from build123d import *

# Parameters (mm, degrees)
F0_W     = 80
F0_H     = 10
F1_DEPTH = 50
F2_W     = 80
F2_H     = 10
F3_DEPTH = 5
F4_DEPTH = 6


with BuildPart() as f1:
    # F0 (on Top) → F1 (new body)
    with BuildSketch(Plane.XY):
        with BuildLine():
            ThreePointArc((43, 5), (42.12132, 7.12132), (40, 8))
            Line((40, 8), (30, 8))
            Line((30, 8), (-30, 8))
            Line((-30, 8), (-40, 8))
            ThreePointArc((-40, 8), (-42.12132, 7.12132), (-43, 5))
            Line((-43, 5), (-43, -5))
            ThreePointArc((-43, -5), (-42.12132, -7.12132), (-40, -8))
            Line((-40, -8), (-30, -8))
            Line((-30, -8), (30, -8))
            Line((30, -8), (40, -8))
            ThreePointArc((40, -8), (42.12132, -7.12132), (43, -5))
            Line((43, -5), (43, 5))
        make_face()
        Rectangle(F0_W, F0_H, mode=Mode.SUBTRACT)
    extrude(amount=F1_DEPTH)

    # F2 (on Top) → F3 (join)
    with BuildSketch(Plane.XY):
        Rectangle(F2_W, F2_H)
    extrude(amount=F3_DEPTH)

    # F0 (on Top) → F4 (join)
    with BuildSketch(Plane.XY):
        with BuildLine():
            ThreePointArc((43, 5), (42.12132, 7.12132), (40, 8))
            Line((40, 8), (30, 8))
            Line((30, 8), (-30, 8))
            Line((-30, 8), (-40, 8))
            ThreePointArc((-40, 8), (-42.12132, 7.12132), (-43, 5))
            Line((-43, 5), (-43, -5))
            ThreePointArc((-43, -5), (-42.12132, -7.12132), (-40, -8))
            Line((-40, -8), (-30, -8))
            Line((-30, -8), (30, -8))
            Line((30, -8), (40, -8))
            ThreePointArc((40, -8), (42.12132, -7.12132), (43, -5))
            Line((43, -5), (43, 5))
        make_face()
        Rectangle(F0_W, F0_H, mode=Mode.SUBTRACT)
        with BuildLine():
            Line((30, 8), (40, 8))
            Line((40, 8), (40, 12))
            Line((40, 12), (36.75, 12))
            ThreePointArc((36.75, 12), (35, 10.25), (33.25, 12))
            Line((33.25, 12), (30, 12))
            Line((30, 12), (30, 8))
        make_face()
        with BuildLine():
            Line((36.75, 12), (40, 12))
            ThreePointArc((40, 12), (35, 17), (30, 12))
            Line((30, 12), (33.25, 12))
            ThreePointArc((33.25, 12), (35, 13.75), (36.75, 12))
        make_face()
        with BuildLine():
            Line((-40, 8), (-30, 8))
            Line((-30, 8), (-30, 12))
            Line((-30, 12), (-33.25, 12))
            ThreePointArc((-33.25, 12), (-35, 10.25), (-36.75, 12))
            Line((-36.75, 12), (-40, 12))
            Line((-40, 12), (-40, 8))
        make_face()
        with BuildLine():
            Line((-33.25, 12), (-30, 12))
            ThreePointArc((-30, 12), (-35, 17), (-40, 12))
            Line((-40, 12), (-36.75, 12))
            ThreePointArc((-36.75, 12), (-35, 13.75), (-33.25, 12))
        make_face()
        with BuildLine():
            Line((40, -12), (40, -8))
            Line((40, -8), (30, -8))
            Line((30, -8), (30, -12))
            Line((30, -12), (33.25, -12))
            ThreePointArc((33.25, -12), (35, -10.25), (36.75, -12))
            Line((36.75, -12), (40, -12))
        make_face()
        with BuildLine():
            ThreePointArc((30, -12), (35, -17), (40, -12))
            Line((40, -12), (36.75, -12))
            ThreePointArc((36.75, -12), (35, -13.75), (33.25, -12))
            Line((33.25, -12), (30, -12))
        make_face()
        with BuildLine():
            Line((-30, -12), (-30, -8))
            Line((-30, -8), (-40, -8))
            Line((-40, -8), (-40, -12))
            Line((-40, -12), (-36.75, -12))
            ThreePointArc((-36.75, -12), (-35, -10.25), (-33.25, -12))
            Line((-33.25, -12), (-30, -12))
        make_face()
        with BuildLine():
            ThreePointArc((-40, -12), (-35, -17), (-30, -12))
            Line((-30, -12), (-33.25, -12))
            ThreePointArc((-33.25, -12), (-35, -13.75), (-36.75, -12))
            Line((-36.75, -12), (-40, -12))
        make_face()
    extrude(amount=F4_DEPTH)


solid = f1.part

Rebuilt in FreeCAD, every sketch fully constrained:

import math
import FreeCAD as App
import Part
import Sketcher
Q = App.Units.Quantity


def add_polygon(sketch, points):
    """Adds a closed chain of lines whose ends are joined by coincident constraints."""
    first, n = sketch.GeometryCount, len(points)
    for a, b in zip(points, points[1:] + points[:1]):
        sketch.addGeometry(Part.LineSegment(App.Vector(*a, 0), App.Vector(*b, 0)), False)
    for i in range(n):
        sketch.addConstraint(Sketcher.Constraint("Coincident", first + i, 2, first + (i + 1) % n, 1))

doc = App.newDocument("Part")
body = doc.addObject("PartDesign::Body", "Body")

# Sketch on XY plane
sketch1 = doc.addObject("Sketcher::SketchObject", "Sketch")
body.addObject(sketch1)
sketch1.AttachmentSupport = (doc.XY_Plane, [""])
sketch1.MapMode = "FlatFace"
sketch1.addGeometry(Part.ArcOfCircle(Part.Circle(App.Vector(39.999999, 4.999999, 0), App.Vector(0, 0, 1), 3.000001), math.radians(0.000022), math.radians(89.999978)), False)  # 0
sketch1.addGeometry(Part.LineSegment(App.Vector(40, 8, 0), App.Vector(-40, 8, 0)), False)  # 1
sketch1.addGeometry(Part.ArcOfCircle(Part.Circle(App.Vector(-39.999999, 4.999999, 0), App.Vector(0, 0, 1), 3.000001), math.radians(90.000022), math.radians(179.999978)), False)  # 2
sketch1.addGeometry(Part.LineSegment(App.Vector(-43, 5, 0), App.Vector(-43, -5, 0)), False)  # 3
sketch1.addGeometry(Part.ArcOfCircle(Part.Circle(App.Vector(-39.999999, -4.999999, 0), App.Vector(0, 0, 1), 3.000001), math.radians(-179.999978), math.radians(-90.000022)), False)  # 4
sketch1.addGeometry(Part.LineSegment(App.Vector(-40, -8, 0), App.Vector(40, -8, 0)), False)  # 5
sketch1.addGeometry(Part.ArcOfCircle(Part.Circle(App.Vector(39.999999, -4.999999, 0), App.Vector(0, 0, 1), 3.000001), math.radians(-89.999978), math.radians(-0.000022)), False)  # 6
sketch1.addGeometry(Part.LineSegment(App.Vector(43, -5, 0), App.Vector(43, 5, 0)), False)  # 7
add_polygon(sketch1, [(40, -5), (-40, -5), (-40, 5), (40, 5)])  # lines 8-11
sketch1.addConstraint(Sketcher.Constraint("Tangent", 0, 2, 1, 1))
sketch1.addConstraint(Sketcher.Constraint("Tangent", 1, 2, 2, 1))
sketch1.addConstraint(Sketcher.Constraint("Tangent", 2, 2, 3, 1))
sketch1.addConstraint(Sketcher.Constraint("Tangent", 3, 2, 4, 1))
sketch1.addConstraint(Sketcher.Constraint("Tangent", 4, 2, 5, 1))
sketch1.addConstraint(Sketcher.Constraint("Tangent", 5, 2, 6, 1))
sketch1.addConstraint(Sketcher.Constraint("Tangent", 6, 2, 7, 1))
sketch1.addConstraint(Sketcher.Constraint("Tangent", 7, 2, 0, 1))
sketch1.addConstraint(Sketcher.Constraint("Horizontal", 1))
sketch1.addConstraint(Sketcher.Constraint("Vertical", 3))
sketch1.addConstraint(Sketcher.Constraint("Horizontal", 5))
sketch1.addConstraint(Sketcher.Constraint("Vertical", 7))
sketch1.addConstraint(Sketcher.Constraint("Horizontal", 8))
sketch1.addConstraint(Sketcher.Constraint("Vertical", 9))
sketch1.addConstraint(Sketcher.Constraint("Horizontal", 10))
sketch1.addConstraint(Sketcher.Constraint("Vertical", 11))
sketch1.addConstraint(Sketcher.Constraint("Coincident", 8, 2, 4, 3))
sketch1.addConstraint(Sketcher.Constraint("Coincident", 9, 2, 2, 3))
sketch1.addConstraint(Sketcher.Constraint("Coincident", 10, 2, 0, 3))
sketch1.addConstraint(Sketcher.Constraint("Equal", 4, 6))
sketch1.addConstraint(Sketcher.Constraint("Symmetric", 0, 3, 4, 3, -1, 1))
sketch1.addConstraint(Sketcher.Constraint("Radius", 0, Q("3.000001 mm")))
sketch1.addConstraint(Sketcher.Constraint("DistanceX", 1, 2, 1, 1, Q("80 mm")))
sketch1.addConstraint(Sketcher.Constraint("DistanceY", 3, 2, 3, 1, Q("10 mm")))
pad1 = doc.addObject("PartDesign::Pad", "Pad")
body.addObject(pad1)
pad1.Profile = sketch1
pad1.Length = 50

# Sketch on XY plane
sketch2 = doc.addObject("Sketcher::SketchObject", "Sketch001")
body.addObject(sketch2)
sketch2.AttachmentSupport = (doc.XY_Plane, [""])
sketch2.MapMode = "FlatFace"
add_polygon(sketch2, [(-40, 5), (-40, -5), (40, -5), (40, 5)])  # lines 0-3
sketch2.addConstraint(Sketcher.Constraint("Vertical", 0))
sketch2.addConstraint(Sketcher.Constraint("Horizontal", 1))
sketch2.addConstraint(Sketcher.Constraint("Vertical", 2))
sketch2.addConstraint(Sketcher.Constraint("Horizontal", 3))
sketch2.addConstraint(Sketcher.Constraint("Symmetric", 0, 2, 2, 2, -1, 1))
sketch2.addConstraint(Sketcher.Constraint("DistanceX", 1, 1, 1, 2, Q("80 mm")))
sketch2.addConstraint(Sketcher.Constraint("DistanceY", 0, 2, 0, 1, Q("10 mm")))
pad2 = doc.addObject("PartDesign::Pad", "Pad001")
body.addObject(pad2)
pad2.Profile = sketch2
pad2.Length = 5

# Sketch on XY plane
sketch3 = doc.addObject("Sketcher::SketchObject", "Sketch002")
body.addObject(sketch3)
sketch3.AttachmentSupport = (doc.XY_Plane, [""])
sketch3.MapMode = "FlatFace"
sketch3.addGeometry(Part.ArcOfCircle(Part.Circle(App.Vector(39.999999, 4.999999, 0), App.Vector(0, 0, 1), 3.000001), math.radians(0.000022), math.radians(89.999978)), False)  # 0
sketch3.addGeometry(Part.LineSegment(App.Vector(40, 8, 0), App.Vector(40, 12, 0)), False)  # 1
sketch3.addGeometry(Part.ArcOfCircle(Part.Circle(App.Vector(35, 12, 0), App.Vector(0, 0, 1), 5), math.radians(0), math.radians(180)), False)  # 2
sketch3.addGeometry(Part.LineSegment(App.Vector(30, 12, 0), App.Vector(30, 8, 0)), False)  # 3
sketch3.addGeometry(Part.LineSegment(App.Vector(30, 8, 0), App.Vector(-30, 8, 0)), False)  # 4
sketch3.addGeometry(Part.LineSegment(App.Vector(-30, 8, 0), App.Vector(-30, 12, 0)), False)  # 5
sketch3.addGeometry(Part.ArcOfCircle(Part.Circle(App.Vector(-35, 12, 0), App.Vector(0, 0, 1), 5), math.radians(0), math.radians(180)), False)  # 6
sketch3.addGeometry(Part.LineSegment(App.Vector(-40, 12, 0), App.Vector(-40, 8, 0)), False)  # 7
sketch3.addGeometry(Part.ArcOfCircle(Part.Circle(App.Vector(-39.999999, 4.999999, 0), App.Vector(0, 0, 1), 3.000001), math.radians(90.000022), math.radians(179.999978)), False)  # 8
sketch3.addGeometry(Part.LineSegment(App.Vector(-43, 5, 0), App.Vector(-43, -5, 0)), False)  # 9
sketch3.addGeometry(Part.ArcOfCircle(Part.Circle(App.Vector(-39.999999, -4.999999, 0), App.Vector(0, 0, 1), 3.000001), math.radians(-179.999978), math.radians(-90.000022)), False)  # 10
sketch3.addGeometry(Part.LineSegment(App.Vector(-40, -8, 0), App.Vector(-40, -12, 0)), False)  # 11
sketch3.addGeometry(Part.ArcOfCircle(Part.Circle(App.Vector(-35, -12, 0), App.Vector(0, 0, 1), 5), math.radians(180), math.radians(360)), False)  # 12
sketch3.addGeometry(Part.LineSegment(App.Vector(-30, -12, 0), App.Vector(-30, -8, 0)), False)  # 13
sketch3.addGeometry(Part.LineSegment(App.Vector(-30, -8, 0), App.Vector(30, -8, 0)), False)  # 14
sketch3.addGeometry(Part.LineSegment(App.Vector(30, -8, 0), App.Vector(30, -12, 0)), False)  # 15
sketch3.addGeometry(Part.ArcOfCircle(Part.Circle(App.Vector(35, -12, 0), App.Vector(0, 0, 1), 5), math.radians(180), math.radians(360)), False)  # 16
sketch3.addGeometry(Part.LineSegment(App.Vector(40, -12, 0), App.Vector(40, -8, 0)), False)  # 17
sketch3.addGeometry(Part.ArcOfCircle(Part.Circle(App.Vector(39.999999, -4.999999, 0), App.Vector(0, 0, 1), 3.000001), math.radians(-89.999978), math.radians(-0.000022)), False)  # 18
sketch3.addGeometry(Part.LineSegment(App.Vector(43, -5, 0), App.Vector(43, 5, 0)), False)  # 19
sketch3.addGeometry(Part.Circle(App.Vector(-35, -12, 0), App.Vector(0, 0, 1), 1.75), False)  # 20
sketch3.addGeometry(Part.Circle(App.Vector(35, -12, 0), App.Vector(0, 0, 1), 1.75), False)  # 21
sketch3.addGeometry(Part.Circle(App.Vector(-35, 12, 0), App.Vector(0, 0, 1), 1.75), False)  # 22
sketch3.addGeometry(Part.Circle(App.Vector(35, 12, 0), App.Vector(0, 0, 1), 1.75), False)  # 23
add_polygon(sketch3, [(40, -5), (-40, -5), (-40, 5), (40, 5)])  # lines 24-27
sketch3.addConstraint(Sketcher.Constraint("Coincident", 0, 2, 1, 1))
sketch3.addConstraint(Sketcher.Constraint("Tangent", 1, 2, 2, 1))
sketch3.addConstraint(Sketcher.Constraint("Tangent", 2, 2, 3, 1))
sketch3.addConstraint(Sketcher.Constraint("Coincident", 3, 2, 4, 1))
sketch3.addConstraint(Sketcher.Constraint("Coincident", 4, 2, 5, 1))
sketch3.addConstraint(Sketcher.Constraint("Tangent", 5, 2, 6, 1))
sketch3.addConstraint(Sketcher.Constraint("Tangent", 6, 2, 7, 1))
sketch3.addConstraint(Sketcher.Constraint("Coincident", 7, 2, 8, 1))
sketch3.addConstraint(Sketcher.Constraint("Tangent", 8, 2, 9, 1))
sketch3.addConstraint(Sketcher.Constraint("Tangent", 9, 2, 10, 1))
sketch3.addConstraint(Sketcher.Constraint("Coincident", 10, 2, 11, 1))
sketch3.addConstraint(Sketcher.Constraint("Tangent", 11, 2, 12, 1))
sketch3.addConstraint(Sketcher.Constraint("Tangent", 12, 2, 13, 1))
sketch3.addConstraint(Sketcher.Constraint("Coincident", 13, 2, 14, 1))
sketch3.addConstraint(Sketcher.Constraint("Coincident", 14, 2, 15, 1))
sketch3.addConstraint(Sketcher.Constraint("Tangent", 15, 2, 16, 1))
sketch3.addConstraint(Sketcher.Constraint("Tangent", 16, 2, 17, 1))
sketch3.addConstraint(Sketcher.Constraint("Coincident", 17, 2, 18, 1))
sketch3.addConstraint(Sketcher.Constraint("Tangent", 18, 2, 19, 1))
sketch3.addConstraint(Sketcher.Constraint("Tangent", 19, 2, 0, 1))
sketch3.addConstraint(Sketcher.Constraint("Vertical", 1))
sketch3.addConstraint(Sketcher.Constraint("Vertical", 3))
sketch3.addConstraint(Sketcher.Constraint("Horizontal", 4))
sketch3.addConstraint(Sketcher.Constraint("Vertical", 5))
sketch3.addConstraint(Sketcher.Constraint("Vertical", 7))
sketch3.addConstraint(Sketcher.Constraint("Vertical", 9))
sketch3.addConstraint(Sketcher.Constraint("Vertical", 11))
sketch3.addConstraint(Sketcher.Constraint("Vertical", 13))
sketch3.addConstraint(Sketcher.Constraint("Horizontal", 14))
sketch3.addConstraint(Sketcher.Constraint("Vertical", 15))
sketch3.addConstraint(Sketcher.Constraint("Vertical", 17))
sketch3.addConstraint(Sketcher.Constraint("Vertical", 19))
sketch3.addConstraint(Sketcher.Constraint("Horizontal", 24))
sketch3.addConstraint(Sketcher.Constraint("Vertical", 25))
sketch3.addConstraint(Sketcher.Constraint("Horizontal", 26))
sketch3.addConstraint(Sketcher.Constraint("Vertical", 27))
sketch3.addConstraint(Sketcher.Constraint("Coincident", 20, 3, 12, 3))
sketch3.addConstraint(Sketcher.Constraint("Coincident", 21, 3, 16, 3))
sketch3.addConstraint(Sketcher.Constraint("Coincident", 22, 3, 6, 3))
sketch3.addConstraint(Sketcher.Constraint("Coincident", 23, 3, 2, 3))
sketch3.addConstraint(Sketcher.Constraint("Coincident", 24, 2, 10, 3))
sketch3.addConstraint(Sketcher.Constraint("Coincident", 25, 2, 8, 3))
sketch3.addConstraint(Sketcher.Constraint("Coincident", 26, 2, 0, 3))
sketch3.addConstraint(Sketcher.Constraint("Coincident", 27, 2, 18, 3))
sketch3.addConstraint(Sketcher.Constraint("Equal", 2, 6))
sketch3.addConstraint(Sketcher.Constraint("Equal", 0, 8))
sketch3.addConstraint(Sketcher.Constraint("Equal", 6, 12))
sketch3.addConstraint(Sketcher.Constraint("Equal", 12, 16))
sketch3.addConstraint(Sketcher.Constraint("Equal", 20, 21))
sketch3.addConstraint(Sketcher.Constraint("Equal", 21, 22))
sketch3.addConstraint(Sketcher.Constraint("Equal", 22, 23))
sketch3.addConstraint(Sketcher.Constraint("Symmetric", 0, 3, 10, 3, -1, 1))
sketch3.addConstraint(Sketcher.Constraint("Symmetric", 2, 3, 12, 3, -1, 1))
sketch3.addConstraint(Sketcher.Constraint("Symmetric", 6, 3, 16, 3, -1, 1))
sketch3.addConstraint(Sketcher.Constraint("Symmetric", 2, 3, 6, 3, -2))
sketch3.addConstraint(Sketcher.Constraint("Horizontal", 0, 2, 3, 2))
sketch3.addConstraint(Sketcher.Constraint("Horizontal", 10, 2, 13, 2))
sketch3.addConstraint(Sketcher.Constraint("Vertical", 18, 3, 0, 2))
sketch3.addConstraint(Sketcher.Constraint("Radius", 0, Q("3.000001 mm")))
sketch3.addConstraint(Sketcher.Constraint("Radius", 2, Q("5 mm")))
sketch3.addConstraint(Sketcher.Constraint("Diameter", 20, Q("3.5 mm")))
sketch3.addConstraint(Sketcher.Constraint("DistanceX", 4, 2, 4, 1, Q("60 mm")))
sketch3.addConstraint(Sketcher.Constraint("DistanceY", 1, 1, 1, 2, Q("4 mm")))
sketch3.addConstraint(Sketcher.Constraint("DistanceY", 9, 2, 9, 1, Q("10 mm")))
pad3 = doc.addObject("PartDesign::Pad", "Pad002")
body.addObject(pad3)
pad3.Profile = sketch3
pad3.Length = 6

doc.recompute()
